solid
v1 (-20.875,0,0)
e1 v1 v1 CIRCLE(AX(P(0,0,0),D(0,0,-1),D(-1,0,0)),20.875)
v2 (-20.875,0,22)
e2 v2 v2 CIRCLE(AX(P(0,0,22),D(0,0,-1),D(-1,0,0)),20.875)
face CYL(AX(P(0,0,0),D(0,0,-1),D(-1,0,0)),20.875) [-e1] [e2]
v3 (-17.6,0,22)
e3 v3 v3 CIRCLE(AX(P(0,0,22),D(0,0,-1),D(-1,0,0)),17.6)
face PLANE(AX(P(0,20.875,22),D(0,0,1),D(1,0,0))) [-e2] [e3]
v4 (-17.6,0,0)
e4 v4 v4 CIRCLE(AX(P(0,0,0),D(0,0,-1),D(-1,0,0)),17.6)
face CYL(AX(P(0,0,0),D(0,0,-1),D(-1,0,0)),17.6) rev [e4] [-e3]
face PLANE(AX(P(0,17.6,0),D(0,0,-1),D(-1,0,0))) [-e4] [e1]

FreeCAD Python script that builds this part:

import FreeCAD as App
import Part
import Sketcher

doc = App.newDocument("Part")
params = doc.addObject("Spreadsheet::Sheet", "Params")
for row, (alias, value) in enumerate([
    ("sketch1_height", "22 mm"),
    ("revolution_angle", "360 deg"),
], start=1):
    params.set(f"A{row}", alias)
    params.set(f"B{row}", "=" + value)
    params.setAlias(f"B{row}", alias)

body = doc.addObject("PartDesign::Body", "Body")

# Sketch on YZ plane
sketch1 = body.newObject("Sketcher::SketchObject", "Sketch")
sketch1.AttachmentSupport = (doc.getObject("YZ_Plane"), [""])
sketch1.MapMode = "FlatFace"
sketch1.addGeometry([
    Part.LineSegment(App.Vector(20.9, 22, 0), App.Vector(17.6, 22, 0)),
    Part.LineSegment(App.Vector(17.6, 22, 0), App.Vector(17.6, 0, 0)),
    Part.LineSegment(App.Vector(17.6, 0, 0), App.Vector(20.9, 0, 0)),
    Part.LineSegment(App.Vector(20.9, 0, 0), App.Vector(20.9, 22, 0)),
], False)
sketch1.addConstraint([
    Sketcher.Constraint("Coincident", 0, 2, 1, 1),
    Sketcher.Constraint("Coincident", 1, 2, 2, 1),
    Sketcher.Constraint("Coincident", 2, 2, 3, 1),
    Sketcher.Constraint("Coincident", 3, 2, 0, 1),
    Sketcher.Constraint("Horizontal", 0),
    Sketcher.Constraint("Vertical", 1),
    Sketcher.Constraint("Horizontal", 2),
    Sketcher.Constraint("Vertical", 3),
    Sketcher.Constraint("PointOnObject", 1, 2, -1),
    Sketcher.Constraint("DistanceY", 1, 2, 1, 1, 22.0),
    Sketcher.Constraint("DistanceX", -1, 1, 0, 2, 17.6),
    Sketcher.Constraint("DistanceX", 0, 2, 0, 1, 3.275),
])
sketch1.setExpression("Constraints[9]", "Params.sketch1_height")
revolution = body.newObject("PartDesign::Revolution", "Revolution")
revolution.Profile = sketch1
revolution.ReferenceAxis = (sketch1, ["V_Axis"])
revolution.setExpression("Angle", "Params.revolution_angle")

doc.recompute()
